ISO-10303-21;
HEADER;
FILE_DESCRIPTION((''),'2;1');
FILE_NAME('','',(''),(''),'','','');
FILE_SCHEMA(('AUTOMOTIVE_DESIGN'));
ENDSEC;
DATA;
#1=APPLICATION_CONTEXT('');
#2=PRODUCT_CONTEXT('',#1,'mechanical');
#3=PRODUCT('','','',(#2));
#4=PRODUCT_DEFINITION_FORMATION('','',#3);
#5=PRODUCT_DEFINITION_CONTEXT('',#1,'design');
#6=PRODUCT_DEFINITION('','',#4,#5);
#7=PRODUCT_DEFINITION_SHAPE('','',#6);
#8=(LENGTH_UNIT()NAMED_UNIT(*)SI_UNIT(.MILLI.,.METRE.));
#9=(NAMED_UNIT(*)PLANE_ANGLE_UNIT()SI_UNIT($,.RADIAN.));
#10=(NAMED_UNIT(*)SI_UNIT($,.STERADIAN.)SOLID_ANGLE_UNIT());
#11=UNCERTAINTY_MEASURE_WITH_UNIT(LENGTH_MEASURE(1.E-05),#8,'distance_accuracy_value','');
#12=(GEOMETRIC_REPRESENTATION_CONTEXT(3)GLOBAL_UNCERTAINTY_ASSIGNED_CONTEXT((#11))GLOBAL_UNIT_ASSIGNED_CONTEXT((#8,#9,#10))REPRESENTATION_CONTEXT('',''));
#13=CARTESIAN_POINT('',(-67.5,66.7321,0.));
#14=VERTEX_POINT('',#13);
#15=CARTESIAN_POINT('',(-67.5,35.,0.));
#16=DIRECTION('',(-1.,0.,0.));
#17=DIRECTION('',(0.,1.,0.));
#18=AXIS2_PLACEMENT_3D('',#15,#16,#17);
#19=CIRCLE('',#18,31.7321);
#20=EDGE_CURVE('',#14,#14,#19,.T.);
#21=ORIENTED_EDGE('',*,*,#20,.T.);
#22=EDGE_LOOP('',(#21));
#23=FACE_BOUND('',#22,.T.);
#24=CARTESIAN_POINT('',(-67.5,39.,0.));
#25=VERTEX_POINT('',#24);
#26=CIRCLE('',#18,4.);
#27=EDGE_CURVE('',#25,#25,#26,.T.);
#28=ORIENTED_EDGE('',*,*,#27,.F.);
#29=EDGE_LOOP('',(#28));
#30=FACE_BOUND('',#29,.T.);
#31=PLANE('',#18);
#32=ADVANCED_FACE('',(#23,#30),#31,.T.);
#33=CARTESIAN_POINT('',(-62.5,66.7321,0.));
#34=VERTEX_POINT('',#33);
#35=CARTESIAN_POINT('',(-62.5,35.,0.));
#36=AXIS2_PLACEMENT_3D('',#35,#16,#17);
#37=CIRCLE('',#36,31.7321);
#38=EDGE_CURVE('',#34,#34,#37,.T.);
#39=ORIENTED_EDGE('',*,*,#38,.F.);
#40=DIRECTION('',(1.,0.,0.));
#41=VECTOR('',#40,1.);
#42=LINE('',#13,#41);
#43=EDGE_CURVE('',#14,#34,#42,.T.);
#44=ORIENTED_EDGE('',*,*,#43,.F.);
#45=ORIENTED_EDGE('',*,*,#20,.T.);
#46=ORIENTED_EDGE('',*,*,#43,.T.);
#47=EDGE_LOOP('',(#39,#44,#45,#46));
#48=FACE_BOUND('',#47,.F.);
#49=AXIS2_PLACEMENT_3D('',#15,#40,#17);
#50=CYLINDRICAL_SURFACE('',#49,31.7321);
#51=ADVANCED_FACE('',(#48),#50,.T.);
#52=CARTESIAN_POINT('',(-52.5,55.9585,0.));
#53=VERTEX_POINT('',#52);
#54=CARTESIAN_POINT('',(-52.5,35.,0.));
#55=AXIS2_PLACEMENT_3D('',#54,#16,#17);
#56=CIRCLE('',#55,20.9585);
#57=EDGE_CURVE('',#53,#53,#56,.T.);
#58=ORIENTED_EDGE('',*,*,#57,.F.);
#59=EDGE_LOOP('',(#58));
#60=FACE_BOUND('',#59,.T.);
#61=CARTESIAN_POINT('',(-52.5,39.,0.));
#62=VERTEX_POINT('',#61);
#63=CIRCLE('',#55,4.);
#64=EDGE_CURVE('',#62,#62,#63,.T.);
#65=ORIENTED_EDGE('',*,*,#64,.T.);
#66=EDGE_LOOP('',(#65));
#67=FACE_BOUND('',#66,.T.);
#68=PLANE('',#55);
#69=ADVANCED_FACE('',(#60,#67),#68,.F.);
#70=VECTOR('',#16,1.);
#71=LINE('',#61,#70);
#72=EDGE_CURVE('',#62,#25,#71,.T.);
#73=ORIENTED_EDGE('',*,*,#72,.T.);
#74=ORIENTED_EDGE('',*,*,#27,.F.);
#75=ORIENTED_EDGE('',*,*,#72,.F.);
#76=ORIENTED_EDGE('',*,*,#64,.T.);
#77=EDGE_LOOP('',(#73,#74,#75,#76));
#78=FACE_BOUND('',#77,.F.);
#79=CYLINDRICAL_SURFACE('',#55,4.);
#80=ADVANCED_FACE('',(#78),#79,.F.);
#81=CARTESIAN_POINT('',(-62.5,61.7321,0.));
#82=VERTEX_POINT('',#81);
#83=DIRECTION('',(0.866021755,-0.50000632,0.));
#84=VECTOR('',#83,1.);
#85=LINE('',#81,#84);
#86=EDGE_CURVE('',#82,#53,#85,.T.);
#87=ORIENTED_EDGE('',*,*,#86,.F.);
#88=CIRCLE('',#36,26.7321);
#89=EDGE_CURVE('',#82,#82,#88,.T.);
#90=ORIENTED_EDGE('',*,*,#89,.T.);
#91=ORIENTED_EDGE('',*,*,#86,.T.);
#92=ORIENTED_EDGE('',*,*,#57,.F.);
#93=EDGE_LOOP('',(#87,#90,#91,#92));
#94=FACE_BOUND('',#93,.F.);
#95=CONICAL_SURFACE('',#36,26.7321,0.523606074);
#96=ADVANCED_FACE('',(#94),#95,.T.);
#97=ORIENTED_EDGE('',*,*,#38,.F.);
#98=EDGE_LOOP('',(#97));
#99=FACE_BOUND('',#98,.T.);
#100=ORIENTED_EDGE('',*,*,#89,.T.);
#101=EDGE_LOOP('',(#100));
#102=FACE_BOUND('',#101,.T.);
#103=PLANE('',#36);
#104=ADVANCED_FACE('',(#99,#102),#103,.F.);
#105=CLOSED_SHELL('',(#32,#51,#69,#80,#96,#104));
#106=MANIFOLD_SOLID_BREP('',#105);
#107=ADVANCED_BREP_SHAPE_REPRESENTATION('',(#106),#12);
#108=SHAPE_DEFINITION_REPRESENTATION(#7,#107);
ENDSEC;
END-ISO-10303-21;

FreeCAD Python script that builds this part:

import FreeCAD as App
import Part
import Sketcher

V = App.Vector
Q = App.Units.Quantity


def add_polygon(sketch, points):
    """Adds a closed chain of lines whose ends are joined by coincident constraints."""
    first, n = sketch.GeometryCount, len(points)
    for a, b in zip(points, points[1:] + points[:1]):
        sketch.addGeometry(Part.LineSegment(App.Vector(*a, 0), App.Vector(*b, 0)), False)
    for i in range(n):
        sketch.addConstraint(Sketcher.Constraint("Coincident", first + i, 2, first + (i + 1) % n, 1))

doc = App.newDocument("Part")
body = doc.addObject("PartDesign::Body", "Body")

# Sketch on XY plane
sketch1 = body.newObject("Sketcher::SketchObject", "Sketch")
sketch1.AttachmentSupport = (doc.getObject("XY_Plane"), [""])
sketch1.MapMode = "FlatFace"
add_polygon(sketch1, [(-52, 56), (-62, 62), (-62, 67), (-68, 67), (-68, 39), (-52, 39)])  # lines 0-5
sketch1.addGeometry(Part.LineSegment(V(-52, 35, 0), V(-68, 35, 0)), True)  # axis
sketch1.addConstraint(Sketcher.Constraint("Vertical", 1))
sketch1.addConstraint(Sketcher.Constraint("Horizontal", 2))
sketch1.addConstraint(Sketcher.Constraint("Vertical", 3))
sketch1.addConstraint(Sketcher.Constraint("Horizontal", 4))
sketch1.addConstraint(Sketcher.Constraint("Vertical", 5))
sketch1.addConstraint(Sketcher.Constraint("Horizontal", 6))
sketch1.addConstraint(Sketcher.Constraint("Vertical", 5, 2, 6, 1))
sketch1.addConstraint(Sketcher.Constraint("Vertical", 3, 2, 6, 2))
sketch1.addConstraint(Sketcher.Constraint("Equal", 2, 1))
sketch1.addConstraint(Sketcher.Constraint("DistanceX", 2, 2, 2, 1, 5.0))
sketch1.addConstraint(Sketcher.Constraint("DistanceX", 0, 2, 4, 2, 10.0))
sketch1.addConstraint(Sketcher.Constraint("DistanceY", 6, 1, 4, 2, 4.0))
sketch1.addConstraint(Sketcher.Constraint("Angle", 0, Q("149.9996 deg")))
sketch1.addConstraint(Sketcher.Constraint("DistanceY", -1, 1, 3, 2, 39.0))
sketch1.addConstraint(Sketcher.Constraint("DistanceX", 0, 2, -1, 1, 62.5))
sketch1.addConstraint(Sketcher.Constraint("DistanceY", 3, 2, 3, 1, 27.732))
revolution = body.newObject("PartDesign::Revolution", "Revolution")
revolution.Profile = sketch1
revolution.ReferenceAxis = (sketch1, ["Axis0"])
revolution.Angle = 360

doc.recompute()
